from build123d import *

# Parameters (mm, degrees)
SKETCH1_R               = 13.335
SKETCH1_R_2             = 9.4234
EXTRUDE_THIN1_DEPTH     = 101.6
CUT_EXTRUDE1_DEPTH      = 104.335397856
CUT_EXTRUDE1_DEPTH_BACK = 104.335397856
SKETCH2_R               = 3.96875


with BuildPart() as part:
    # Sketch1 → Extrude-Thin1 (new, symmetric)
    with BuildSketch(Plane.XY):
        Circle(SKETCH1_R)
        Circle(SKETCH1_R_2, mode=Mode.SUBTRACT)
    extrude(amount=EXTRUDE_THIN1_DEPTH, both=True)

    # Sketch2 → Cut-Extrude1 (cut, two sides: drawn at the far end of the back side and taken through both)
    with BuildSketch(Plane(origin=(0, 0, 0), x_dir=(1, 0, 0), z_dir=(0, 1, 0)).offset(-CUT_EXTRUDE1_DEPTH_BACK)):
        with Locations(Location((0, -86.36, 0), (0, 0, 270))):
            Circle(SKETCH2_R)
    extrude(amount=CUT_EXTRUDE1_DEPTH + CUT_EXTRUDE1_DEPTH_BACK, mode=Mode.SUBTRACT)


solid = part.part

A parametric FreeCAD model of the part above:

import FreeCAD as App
import Part
import Sketcher
Q = App.Units.Quantity

doc = App.newDocument("Part")
body = doc.addObject("PartDesign::Body", "Body")

# Sketch on XY plane
sketch1 = body.newObject("Sketcher::SketchObject", "Sketch")
sketch1.AttachmentSupport = (doc.getObject("XY_Plane"), [""])
sketch1.MapMode = "FlatFace"
sketch1.addGeometry([
    Part.Circle(App.Vector(0, 0, 0), App.Vector(0, 0, 1), 13.335),
    Part.Circle(App.Vector(0, 0, 0), App.Vector(0, 0, 1), 9.4234),
], False)
sketch1.addConstraint([
    Sketcher.Constraint("Coincident", 0, 3, -1, 1),
    Sketcher.Constraint("Coincident", 1, 3, -1, 1),
    Sketcher.Constraint("Diameter", 0, Q("1.05 in")),
    Sketcher.Constraint("Diameter", 1, Q("0.742 in")),
])
pad1 = body.newObject("PartDesign::Pad", "Pad")
pad1.Profile = sketch1
pad1.Length = Q("8 in")
pad1.Midplane = True

# Sketch on XZ plane
sketch2 = body.newObject("Sketcher::SketchObject", "Sketch001")
sketch2.AttachmentSupport = (doc.getObject("XZ_Plane"), [""])
sketch2.MapMode = "FlatFace"
sketch2.addGeometry(Part.Circle(App.Vector(0, 86.36, 0), App.Vector(0, 0, 1), 3.96875), False)
sketch2.addConstraint([
    Sketcher.Constraint("PointOnObject", 0, 3, -2),
    Sketcher.Constraint("Diameter", 0, Q("0.3125 in")),
    Sketcher.Constraint("DistanceY", -1, 1, 0, 3, Q("3.4 in")),
])
pocket1 = body.newObject("PartDesign::Pocket", "Pocket")
pocket1.Profile = sketch2
pocket1.Type = "ThroughAll"
pocket1.Midplane = True

doc.recompute()
